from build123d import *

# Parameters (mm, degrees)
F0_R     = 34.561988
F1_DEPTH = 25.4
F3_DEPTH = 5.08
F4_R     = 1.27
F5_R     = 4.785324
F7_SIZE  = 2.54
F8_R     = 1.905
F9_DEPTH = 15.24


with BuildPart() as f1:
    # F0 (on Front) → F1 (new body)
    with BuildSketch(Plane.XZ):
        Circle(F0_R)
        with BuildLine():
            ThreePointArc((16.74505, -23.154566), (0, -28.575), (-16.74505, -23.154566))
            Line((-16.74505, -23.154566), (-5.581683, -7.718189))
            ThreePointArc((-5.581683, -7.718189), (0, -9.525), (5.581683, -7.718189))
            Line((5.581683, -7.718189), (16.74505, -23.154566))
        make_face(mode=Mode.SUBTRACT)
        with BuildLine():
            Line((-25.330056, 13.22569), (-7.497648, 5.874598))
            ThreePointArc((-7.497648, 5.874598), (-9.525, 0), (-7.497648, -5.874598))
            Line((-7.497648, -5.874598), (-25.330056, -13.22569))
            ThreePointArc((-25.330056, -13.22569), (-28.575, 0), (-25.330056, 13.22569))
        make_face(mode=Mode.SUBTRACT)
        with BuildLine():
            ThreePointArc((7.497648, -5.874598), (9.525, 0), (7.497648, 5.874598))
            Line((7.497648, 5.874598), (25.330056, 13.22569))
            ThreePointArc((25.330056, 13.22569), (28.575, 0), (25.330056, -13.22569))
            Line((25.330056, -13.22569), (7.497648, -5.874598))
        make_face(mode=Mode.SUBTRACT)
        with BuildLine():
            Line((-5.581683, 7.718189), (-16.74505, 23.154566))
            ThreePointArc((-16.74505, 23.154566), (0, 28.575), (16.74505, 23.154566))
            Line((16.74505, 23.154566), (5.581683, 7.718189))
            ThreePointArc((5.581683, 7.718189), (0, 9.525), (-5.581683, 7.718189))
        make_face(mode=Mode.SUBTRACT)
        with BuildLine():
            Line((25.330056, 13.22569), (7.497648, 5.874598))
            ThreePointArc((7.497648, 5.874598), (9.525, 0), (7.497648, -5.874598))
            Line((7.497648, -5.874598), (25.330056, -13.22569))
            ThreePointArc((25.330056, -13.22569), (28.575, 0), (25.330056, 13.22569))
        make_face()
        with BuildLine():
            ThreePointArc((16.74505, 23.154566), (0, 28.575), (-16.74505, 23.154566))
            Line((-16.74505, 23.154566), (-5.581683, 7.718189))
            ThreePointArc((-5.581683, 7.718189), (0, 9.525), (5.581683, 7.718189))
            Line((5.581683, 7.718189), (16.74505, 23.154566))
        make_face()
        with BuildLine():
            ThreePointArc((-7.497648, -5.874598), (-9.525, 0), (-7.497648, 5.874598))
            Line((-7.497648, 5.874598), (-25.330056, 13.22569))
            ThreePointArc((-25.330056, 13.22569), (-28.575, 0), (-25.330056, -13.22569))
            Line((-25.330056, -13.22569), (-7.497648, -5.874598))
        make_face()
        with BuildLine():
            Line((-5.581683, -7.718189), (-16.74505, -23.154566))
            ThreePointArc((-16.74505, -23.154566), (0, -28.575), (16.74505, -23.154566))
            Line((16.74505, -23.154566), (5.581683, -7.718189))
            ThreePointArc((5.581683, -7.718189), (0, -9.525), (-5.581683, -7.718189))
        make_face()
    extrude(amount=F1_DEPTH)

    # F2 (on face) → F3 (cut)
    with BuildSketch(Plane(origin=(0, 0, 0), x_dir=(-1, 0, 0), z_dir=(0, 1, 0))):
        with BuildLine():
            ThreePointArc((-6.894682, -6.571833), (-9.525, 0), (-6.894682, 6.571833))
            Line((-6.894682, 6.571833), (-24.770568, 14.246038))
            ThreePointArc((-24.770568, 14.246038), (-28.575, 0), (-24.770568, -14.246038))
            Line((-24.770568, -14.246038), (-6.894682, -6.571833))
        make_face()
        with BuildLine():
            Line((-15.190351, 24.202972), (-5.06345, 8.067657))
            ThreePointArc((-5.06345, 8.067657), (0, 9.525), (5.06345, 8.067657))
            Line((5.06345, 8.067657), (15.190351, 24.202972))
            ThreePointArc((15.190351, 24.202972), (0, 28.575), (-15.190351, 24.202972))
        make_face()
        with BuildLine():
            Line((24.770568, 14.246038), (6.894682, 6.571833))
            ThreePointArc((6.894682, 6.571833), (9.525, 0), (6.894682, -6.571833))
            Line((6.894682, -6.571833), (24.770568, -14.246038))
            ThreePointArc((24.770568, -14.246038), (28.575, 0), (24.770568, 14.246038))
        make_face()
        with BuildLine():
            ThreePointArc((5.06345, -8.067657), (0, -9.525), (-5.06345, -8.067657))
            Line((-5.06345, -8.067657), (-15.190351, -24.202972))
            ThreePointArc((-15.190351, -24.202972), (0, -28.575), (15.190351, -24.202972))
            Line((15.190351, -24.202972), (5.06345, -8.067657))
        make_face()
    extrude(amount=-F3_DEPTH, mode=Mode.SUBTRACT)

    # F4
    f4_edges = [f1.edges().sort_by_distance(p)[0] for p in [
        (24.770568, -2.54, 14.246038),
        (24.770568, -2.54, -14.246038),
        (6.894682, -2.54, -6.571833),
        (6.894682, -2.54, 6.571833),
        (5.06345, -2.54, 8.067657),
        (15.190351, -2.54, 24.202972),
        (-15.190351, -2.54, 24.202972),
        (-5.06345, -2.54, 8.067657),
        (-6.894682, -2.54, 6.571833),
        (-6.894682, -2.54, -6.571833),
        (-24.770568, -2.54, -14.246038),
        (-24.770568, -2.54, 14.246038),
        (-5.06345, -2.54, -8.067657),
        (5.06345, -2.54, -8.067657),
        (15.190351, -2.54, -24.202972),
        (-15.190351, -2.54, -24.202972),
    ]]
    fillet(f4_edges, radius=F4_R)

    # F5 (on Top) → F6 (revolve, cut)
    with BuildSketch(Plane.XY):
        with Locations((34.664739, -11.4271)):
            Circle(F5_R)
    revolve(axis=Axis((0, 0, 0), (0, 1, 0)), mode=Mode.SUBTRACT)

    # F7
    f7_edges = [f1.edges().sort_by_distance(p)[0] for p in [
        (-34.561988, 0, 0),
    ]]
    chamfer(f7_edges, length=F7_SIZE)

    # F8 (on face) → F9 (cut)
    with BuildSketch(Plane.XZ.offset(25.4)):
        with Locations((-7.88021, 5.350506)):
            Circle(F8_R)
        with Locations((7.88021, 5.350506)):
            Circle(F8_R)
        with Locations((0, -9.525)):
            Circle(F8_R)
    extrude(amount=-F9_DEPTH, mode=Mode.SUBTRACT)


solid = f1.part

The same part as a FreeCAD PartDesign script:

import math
import FreeCAD as App
import Part
import Sketcher
from FreeCAD import Vector
Q = App.Units.Quantity


def edges_at(feature, points):
    """Names of the edges that pass closest to the given points."""
    edges = feature.Shape.Edges
    near = lambda p: min(range(len(edges)), key=lambda i: edges[i].distToShape(Part.Vertex(*p))[0])
    return sorted({f"Edge{near(p) + 1}" for p in points})

doc = App.newDocument("Part")
body = doc.addObject("PartDesign::Body", "Body")

sketch1 = body.newObject("Sketcher::SketchObject", "Sketch")
sketch1.AttachmentSupport = (doc.getObject("XZ_Plane"), [""])
sketch1.MapMode = "FlatFace"
sketch1.addGeometry(Part.Circle(Vector(0, 0, 0), Vector(0, 0, 1), 35), False)
sketch1.addConstraint([
    Sketcher.Constraint("Coincident", 0, 3, -1, 1),
    Sketcher.Constraint("Diameter", 0, 69.123976),
])
pad1 = body.newObject("PartDesign::Pad", "Pad")
pad1.Profile = sketch1
pad1.Length = Q("1 in")

sketch2 = body.newObject("Sketcher::SketchObject", "Sketch001")
sketch2.AttachmentSupport = (doc.getObject("XZ_Plane"), [""])
sketch2.MapMode = "FlatFace"
sketch2.addGeometry([
    Part.ArcOfCircle(Part.Circle(Vector(0, 0, 0), Vector(0, 0, 1), 10), math.radians(-44), math.radians(44)),
    Part.LineSegment(Vector(7, 7, 0), Vector(25, 14, 0)),
    Part.ArcOfCircle(Part.Circle(Vector(0, 0, 0), Vector(0, 0, 1), 29), math.radians(-30), math.radians(30)),
    Part.LineSegment(Vector(25, -14, 0), Vector(7, -7, 0)),
    Part.LineSegment(Vector(15, 24, 0), Vector(5, 8, 0)),
    Part.ArcOfCircle(Part.Circle(Vector(0, 0, 0), Vector(0, 0, 1), 10), math.radians(58), math.radians(122)),
    Part.LineSegment(Vector(-5, 8, 0), Vector(-15, 24, 0)),
    Part.ArcOfCircle(Part.Circle(Vector(0, 0, 0), Vector(0, 0, 1), 29), math.radians(58), math.radians(122)),
    Part.LineSegment(Vector(-25, 14, 0), Vector(-7, 7, 0)),
    Part.ArcOfCircle(Part.Circle(Vector(0, 0, 0), Vector(0, 0, 1), 10), math.radians(136), math.radians(224)),
    Part.LineSegment(Vector(-7, -7, 0), Vector(-25, -14, 0)),
    Part.ArcOfCircle(Part.Circle(Vector(0, 0, 0), Vector(0, 0, 1), 29), math.radians(150), math.radians(210)),
    Part.ArcOfCircle(Part.Circle(Vector(0, 0, 0), Vector(0, 0, 1), 10), math.radians(-122), math.radians(-58)),
    Part.LineSegment(Vector(5, -8, 0), Vector(15, -24, 0)),
    Part.ArcOfCircle(Part.Circle(Vector(0, 0, 0), Vector(0, 0, 1), 29), math.radians(-122), math.radians(-58)),
    Part.LineSegment(Vector(-15, -24, 0), Vector(-5, -8, 0)),
], False)
sketch2.addConstraint([
    Sketcher.Constraint("Coincident", 0, 2, 1, 1),
    Sketcher.Constraint("Coincident", 1, 2, 2, 2),
    Sketcher.Constraint("Coincident", 2, 1, 3, 1),
    Sketcher.Constraint("Coincident", 3, 2, 0, 1),
    Sketcher.Constraint("Coincident", 4, 2, 5, 1),
    Sketcher.Constraint("Coincident", 5, 2, 6, 1),
    Sketcher.Constraint("Coincident", 6, 2, 7, 2),
    Sketcher.Constraint("Coincident", 7, 1, 4, 1),
    Sketcher.Constraint("Coincident", 8, 2, 9, 1),
    Sketcher.Constraint("Coincident", 9, 2, 10, 1),
    Sketcher.Constraint("Coincident", 10, 2, 11, 2),
    Sketcher.Constraint("Coincident", 11, 1, 8, 1),
    Sketcher.Constraint("Coincident", 12, 2, 13, 1),
    Sketcher.Constraint("Coincident", 13, 2, 14, 2),
    Sketcher.Constraint("Coincident", 14, 1, 15, 1),
    Sketcher.Constraint("Coincident", 15, 2, 12, 1),
    Sketcher.Constraint("Coincident", 0, 3, -1, 1),
    Sketcher.Constraint("Coincident", 2, 3, -1, 1),
    Sketcher.Constraint("Coincident", 5, 3, -1, 1),
    Sketcher.Constraint("Coincident", 7, 3, -1, 1),
    Sketcher.Constraint("Coincident", 9, 3, -1, 1),
    Sketcher.Constraint("Coincident", 11, 3, -1, 1),
    Sketcher.Constraint("Coincident", 12, 3, -1, 1),
    Sketcher.Constraint("Coincident", 14, 3, -1, 1),
    Sketcher.Constraint("Equal", 0, 9),
    Sketcher.Constraint("Equal", 2, 11),
    Sketcher.Constraint("Equal", 5, 12),
    Sketcher.Constraint("Equal", 7, 14),
    Sketcher.Constraint("Parallel", 3, 8),
    Sketcher.Constraint("Parallel", 1, 10),
    Sketcher.Constraint("Parallel", 6, 13),
    Sketcher.Constraint("Parallel", 4, 15),
    Sketcher.Constraint("Horizontal", 4, 2, 5, 2),
    Sketcher.Constraint("Horizontal", 6, 2, 7, 1),
    Sketcher.Constraint("Horizontal", 0, 2, 8, 2),
    Sketcher.Constraint("Horizontal", 3, 2, 9, 2),
    Sketcher.Constraint("Horizontal", 2, 1, 10, 2),
    Sketcher.Constraint("Horizontal", 13, 2, 14, 1),
    Sketcher.Constraint("Vertical", 1, 2, 2, 1),
    Sketcher.Constraint("Vertical", 4, 2, 12, 2),
    Sketcher.Constraint("Radius", 0, Q("0.375 in")),
    Sketcher.Constraint("Radius", 2, Q("1.1250001 in")),
    Sketcher.Constraint("Radius", 5, Q("0.3749999 in")),
    Sketcher.Constraint("Radius", 7, Q("1.125 in")),
    Sketcher.Constraint("DistanceX", 6, 2, 5, 2, 10.126901),
    Sketcher.Constraint("DistanceX", 6, 2, 4, 2, 20.253801),
    Sketcher.Constraint("DistanceX", -1, 1, 1, 2, 24.770568),
    Sketcher.Constraint("DistanceY", 5, 3, 0, 2, 6.57183),
])
pocket1 = body.newObject("PartDesign::Pocket", "Pocket")
pocket1.Profile = sketch2
pocket1.Length = Q("0.2 in")
pocket1.Reversed = True
doc.recompute()

fillet = body.newObject("PartDesign::Fillet", "Fillet")
fillet.Base = (pocket1, edges_at(pocket1, [
    (24.771, -2.54, 14.246),
    (24.771, -2.54, -14.246),
    (6.895, -2.54, -6.572),
    (6.895, -2.54, 6.572),
    (5.063, -2.54, 8.068),
    (15.19, -2.54, 24.203),
    (-15.19, -2.54, 24.203),
    (-5.063, -2.54, 8.068),
    (-6.895, -2.54, 6.572),
    (-6.895, -2.54, -6.572),
    (-24.771, -2.54, -14.246),
    (-24.771, -2.54, 14.246),
    (-5.063, -2.54, -8.068),
    (5.063, -2.54, -8.068),
    (15.19, -2.54, -24.203),
    (-15.19, -2.54, -24.203),
]))
fillet.Radius = Q("0.05 in")

sketch3 = body.newObject("Sketcher::SketchObject", "Sketch002")
sketch3.AttachmentSupport = (doc.getObject("XY_Plane"), [""])
sketch3.MapMode = "FlatFace"
sketch3.addGeometry(Part.Circle(Vector(34.7, -11.4, 0), Vector(0, 0, 1), 4.8), False)
sketch3.addConstraint([
    Sketcher.Constraint("Diameter", 0, 9.570648),
    Sketcher.Constraint("DistanceY", 0, 3, -1, 1, 11.4271),
    Sketcher.Constraint("DistanceX", -1, 1, 0, 3, 34.664739),
])
groove = body.newObject("PartDesign::Groove", "Groove")
groove.Profile = sketch3
groove.ReferenceAxis = (sketch3, ["V_Axis"])
groove.Angle = 360
doc.recompute()

chamfer = body.newObject("PartDesign::Chamfer", "Chamfer")
chamfer.Base = (groove, edges_at(groove, [(-34.562, 0, 0)]))
chamfer.Size = Q("0.1 in")

sketch4 = body.newObject("Sketcher::SketchObject", "Sketch003")
sketch4.AttachmentSupport = (doc.getObject("XZ_Plane"), [""])
sketch4.MapMode = "FlatFace"
sketch4.AttachmentOffset = App.Placement(Vector(0, 0, 1 * 25.4), App.Rotation())
sketch4.addGeometry([
    Part.Circle(Vector(-7.9, 5.4, 0), Vector(0, 0, 1), 1.9),
    Part.Circle(Vector(7.9, 5.4, 0), Vector(0, 0, 1), 1.9),
    Part.Circle(Vector(0, -9.5, 0), Vector(0, 0, 1), 1.9),
], False)
sketch4.addConstraint([
    Sketcher.Constraint("Equal", 0, 1),
    Sketcher.Constraint("Equal", 1, 2),
    Sketcher.Constraint("Symmetric", 0, 3, 1, 3, -2),
    Sketcher.Constraint("PointOnObject", 2, 3, -2),
    Sketcher.Constraint("Diameter", 0, Q("0.15 in")),
    Sketcher.Constraint("DistanceY", 2, 3, -1, 1, Q("0.375 in")),
    Sketcher.Constraint("DistanceX", 0, 3, -1, 1, 7.88021),
    Sketcher.Constraint("DistanceY", -1, 1, 0, 3, 5.350506),
])
pocket2 = body.newObject("PartDesign::Pocket", "Pocket001")
pocket2.Profile = sketch4
pocket2.Length = Q("0.6 in")

doc.recompute()
